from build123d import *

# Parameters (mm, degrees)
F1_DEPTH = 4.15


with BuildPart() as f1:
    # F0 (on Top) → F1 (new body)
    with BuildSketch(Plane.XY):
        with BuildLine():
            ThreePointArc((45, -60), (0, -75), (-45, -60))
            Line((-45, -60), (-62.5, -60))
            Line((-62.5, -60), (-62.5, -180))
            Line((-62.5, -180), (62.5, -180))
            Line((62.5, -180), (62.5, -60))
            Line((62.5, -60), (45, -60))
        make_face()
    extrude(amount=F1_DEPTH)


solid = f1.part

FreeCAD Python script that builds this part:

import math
import FreeCAD as App
import Part
import Sketcher
from FreeCAD import Vector
Q = App.Units.Quantity

doc = App.newDocument("Part")
params = doc.addObject("Spreadsheet::Sheet", "Params")
for row, (alias, value) in enumerate([
    ("sketch1_radius", "75 mm"),
    ("sketch1_width", "125 mm"),
    ("sketch1_height", "120 mm"),
    ("sketch1_width2", "17.5 mm"),
    ("pad1_length", "4.15 mm"),
], start=1):
    params.set(f"A{row}", alias)
    params.set(f"B{row}", "=" + value)
    params.setAlias(f"B{row}", alias)

body = doc.addObject("PartDesign::Body", "Body")

# Sketch on XY plane
sketch1 = body.newObject("Sketcher::SketchObject", "Sketch")
sketch1.AttachmentSupport = (doc.getObject("XY_Plane"), [""])
sketch1.MapMode = "FlatFace"
sketch1.addGeometry(Part.ArcOfCircle(Part.Circle(Vector(0, 0, 0), Vector(0, 0, 1), 75), math.radians(-127), math.radians(-53)), False)
sketch1.addGeometry(Part.LineSegment(Vector(-45, -60, 0), Vector(-62, -60, 0)), False)
sketch1.addGeometry(Part.LineSegment(Vector(-62, -60, 0), Vector(-62, -180, 0)), False)
sketch1.addGeometry(Part.LineSegment(Vector(-62, -180, 0), Vector(62, -180, 0)), False)
sketch1.addGeometry(Part.LineSegment(Vector(62, -180, 0), Vector(62, -60, 0)), False)
sketch1.addGeometry(Part.LineSegment(Vector(62, -60, 0), Vector(45, -60, 0)), False)
sketch1.addConstraint(Sketcher.Constraint("Coincident", 0, 1, 1, 1))
sketch1.addConstraint(Sketcher.Constraint("Coincident", 1, 2, 2, 1))
sketch1.addConstraint(Sketcher.Constraint("Coincident", 2, 2, 3, 1))
sketch1.addConstraint(Sketcher.Constraint("Coincident", 3, 2, 4, 1))
sketch1.addConstraint(Sketcher.Constraint("Coincident", 4, 2, 5, 1))
sketch1.addConstraint(Sketcher.Constraint("Coincident", 5, 2, 0, 2))
sketch1.addConstraint(Sketcher.Constraint("Horizontal", 1))
sketch1.addConstraint(Sketcher.Constraint("Vertical", 2))
sketch1.addConstraint(Sketcher.Constraint("Horizontal", 3))
sketch1.addConstraint(Sketcher.Constraint("Vertical", 4))
sketch1.addConstraint(Sketcher.Constraint("Horizontal", 5))
sketch1.addConstraint(Sketcher.Constraint("Coincident", 0, 3, -1, 1))
sketch1.addConstraint(Sketcher.Constraint("Symmetric", 1, 2, 4, 2, -2))
sketch1.addConstraint(Sketcher.Constraint("Radius", 0, Q("75 mm")))
sketch1.addConstraint(Sketcher.Constraint("DistanceX", 3, 1, 3, 2, Q("125 mm")))
sketch1.addConstraint(Sketcher.Constraint("DistanceY", 2, 2, 2, 1, Q("120 mm")))
sketch1.addConstraint(Sketcher.Constraint("DistanceX", 1, 2, 1, 1, Q("17.5 mm")))
sketch1.setExpression("Constraints[13]", "Params.sketch1_radius")
sketch1.setExpression("Constraints[14]", "Params.sketch1_width")
sketch1.setExpression("Constraints[15]", "Params.sketch1_height")
sketch1.setExpression("Constraints[16]", "Params.sketch1_width2")
pad1 = body.newObject("PartDesign::Pad", "Pad")
pad1.Profile = sketch1
pad1.setExpression("Length", "Params.pad1_length")

doc.recompute()
